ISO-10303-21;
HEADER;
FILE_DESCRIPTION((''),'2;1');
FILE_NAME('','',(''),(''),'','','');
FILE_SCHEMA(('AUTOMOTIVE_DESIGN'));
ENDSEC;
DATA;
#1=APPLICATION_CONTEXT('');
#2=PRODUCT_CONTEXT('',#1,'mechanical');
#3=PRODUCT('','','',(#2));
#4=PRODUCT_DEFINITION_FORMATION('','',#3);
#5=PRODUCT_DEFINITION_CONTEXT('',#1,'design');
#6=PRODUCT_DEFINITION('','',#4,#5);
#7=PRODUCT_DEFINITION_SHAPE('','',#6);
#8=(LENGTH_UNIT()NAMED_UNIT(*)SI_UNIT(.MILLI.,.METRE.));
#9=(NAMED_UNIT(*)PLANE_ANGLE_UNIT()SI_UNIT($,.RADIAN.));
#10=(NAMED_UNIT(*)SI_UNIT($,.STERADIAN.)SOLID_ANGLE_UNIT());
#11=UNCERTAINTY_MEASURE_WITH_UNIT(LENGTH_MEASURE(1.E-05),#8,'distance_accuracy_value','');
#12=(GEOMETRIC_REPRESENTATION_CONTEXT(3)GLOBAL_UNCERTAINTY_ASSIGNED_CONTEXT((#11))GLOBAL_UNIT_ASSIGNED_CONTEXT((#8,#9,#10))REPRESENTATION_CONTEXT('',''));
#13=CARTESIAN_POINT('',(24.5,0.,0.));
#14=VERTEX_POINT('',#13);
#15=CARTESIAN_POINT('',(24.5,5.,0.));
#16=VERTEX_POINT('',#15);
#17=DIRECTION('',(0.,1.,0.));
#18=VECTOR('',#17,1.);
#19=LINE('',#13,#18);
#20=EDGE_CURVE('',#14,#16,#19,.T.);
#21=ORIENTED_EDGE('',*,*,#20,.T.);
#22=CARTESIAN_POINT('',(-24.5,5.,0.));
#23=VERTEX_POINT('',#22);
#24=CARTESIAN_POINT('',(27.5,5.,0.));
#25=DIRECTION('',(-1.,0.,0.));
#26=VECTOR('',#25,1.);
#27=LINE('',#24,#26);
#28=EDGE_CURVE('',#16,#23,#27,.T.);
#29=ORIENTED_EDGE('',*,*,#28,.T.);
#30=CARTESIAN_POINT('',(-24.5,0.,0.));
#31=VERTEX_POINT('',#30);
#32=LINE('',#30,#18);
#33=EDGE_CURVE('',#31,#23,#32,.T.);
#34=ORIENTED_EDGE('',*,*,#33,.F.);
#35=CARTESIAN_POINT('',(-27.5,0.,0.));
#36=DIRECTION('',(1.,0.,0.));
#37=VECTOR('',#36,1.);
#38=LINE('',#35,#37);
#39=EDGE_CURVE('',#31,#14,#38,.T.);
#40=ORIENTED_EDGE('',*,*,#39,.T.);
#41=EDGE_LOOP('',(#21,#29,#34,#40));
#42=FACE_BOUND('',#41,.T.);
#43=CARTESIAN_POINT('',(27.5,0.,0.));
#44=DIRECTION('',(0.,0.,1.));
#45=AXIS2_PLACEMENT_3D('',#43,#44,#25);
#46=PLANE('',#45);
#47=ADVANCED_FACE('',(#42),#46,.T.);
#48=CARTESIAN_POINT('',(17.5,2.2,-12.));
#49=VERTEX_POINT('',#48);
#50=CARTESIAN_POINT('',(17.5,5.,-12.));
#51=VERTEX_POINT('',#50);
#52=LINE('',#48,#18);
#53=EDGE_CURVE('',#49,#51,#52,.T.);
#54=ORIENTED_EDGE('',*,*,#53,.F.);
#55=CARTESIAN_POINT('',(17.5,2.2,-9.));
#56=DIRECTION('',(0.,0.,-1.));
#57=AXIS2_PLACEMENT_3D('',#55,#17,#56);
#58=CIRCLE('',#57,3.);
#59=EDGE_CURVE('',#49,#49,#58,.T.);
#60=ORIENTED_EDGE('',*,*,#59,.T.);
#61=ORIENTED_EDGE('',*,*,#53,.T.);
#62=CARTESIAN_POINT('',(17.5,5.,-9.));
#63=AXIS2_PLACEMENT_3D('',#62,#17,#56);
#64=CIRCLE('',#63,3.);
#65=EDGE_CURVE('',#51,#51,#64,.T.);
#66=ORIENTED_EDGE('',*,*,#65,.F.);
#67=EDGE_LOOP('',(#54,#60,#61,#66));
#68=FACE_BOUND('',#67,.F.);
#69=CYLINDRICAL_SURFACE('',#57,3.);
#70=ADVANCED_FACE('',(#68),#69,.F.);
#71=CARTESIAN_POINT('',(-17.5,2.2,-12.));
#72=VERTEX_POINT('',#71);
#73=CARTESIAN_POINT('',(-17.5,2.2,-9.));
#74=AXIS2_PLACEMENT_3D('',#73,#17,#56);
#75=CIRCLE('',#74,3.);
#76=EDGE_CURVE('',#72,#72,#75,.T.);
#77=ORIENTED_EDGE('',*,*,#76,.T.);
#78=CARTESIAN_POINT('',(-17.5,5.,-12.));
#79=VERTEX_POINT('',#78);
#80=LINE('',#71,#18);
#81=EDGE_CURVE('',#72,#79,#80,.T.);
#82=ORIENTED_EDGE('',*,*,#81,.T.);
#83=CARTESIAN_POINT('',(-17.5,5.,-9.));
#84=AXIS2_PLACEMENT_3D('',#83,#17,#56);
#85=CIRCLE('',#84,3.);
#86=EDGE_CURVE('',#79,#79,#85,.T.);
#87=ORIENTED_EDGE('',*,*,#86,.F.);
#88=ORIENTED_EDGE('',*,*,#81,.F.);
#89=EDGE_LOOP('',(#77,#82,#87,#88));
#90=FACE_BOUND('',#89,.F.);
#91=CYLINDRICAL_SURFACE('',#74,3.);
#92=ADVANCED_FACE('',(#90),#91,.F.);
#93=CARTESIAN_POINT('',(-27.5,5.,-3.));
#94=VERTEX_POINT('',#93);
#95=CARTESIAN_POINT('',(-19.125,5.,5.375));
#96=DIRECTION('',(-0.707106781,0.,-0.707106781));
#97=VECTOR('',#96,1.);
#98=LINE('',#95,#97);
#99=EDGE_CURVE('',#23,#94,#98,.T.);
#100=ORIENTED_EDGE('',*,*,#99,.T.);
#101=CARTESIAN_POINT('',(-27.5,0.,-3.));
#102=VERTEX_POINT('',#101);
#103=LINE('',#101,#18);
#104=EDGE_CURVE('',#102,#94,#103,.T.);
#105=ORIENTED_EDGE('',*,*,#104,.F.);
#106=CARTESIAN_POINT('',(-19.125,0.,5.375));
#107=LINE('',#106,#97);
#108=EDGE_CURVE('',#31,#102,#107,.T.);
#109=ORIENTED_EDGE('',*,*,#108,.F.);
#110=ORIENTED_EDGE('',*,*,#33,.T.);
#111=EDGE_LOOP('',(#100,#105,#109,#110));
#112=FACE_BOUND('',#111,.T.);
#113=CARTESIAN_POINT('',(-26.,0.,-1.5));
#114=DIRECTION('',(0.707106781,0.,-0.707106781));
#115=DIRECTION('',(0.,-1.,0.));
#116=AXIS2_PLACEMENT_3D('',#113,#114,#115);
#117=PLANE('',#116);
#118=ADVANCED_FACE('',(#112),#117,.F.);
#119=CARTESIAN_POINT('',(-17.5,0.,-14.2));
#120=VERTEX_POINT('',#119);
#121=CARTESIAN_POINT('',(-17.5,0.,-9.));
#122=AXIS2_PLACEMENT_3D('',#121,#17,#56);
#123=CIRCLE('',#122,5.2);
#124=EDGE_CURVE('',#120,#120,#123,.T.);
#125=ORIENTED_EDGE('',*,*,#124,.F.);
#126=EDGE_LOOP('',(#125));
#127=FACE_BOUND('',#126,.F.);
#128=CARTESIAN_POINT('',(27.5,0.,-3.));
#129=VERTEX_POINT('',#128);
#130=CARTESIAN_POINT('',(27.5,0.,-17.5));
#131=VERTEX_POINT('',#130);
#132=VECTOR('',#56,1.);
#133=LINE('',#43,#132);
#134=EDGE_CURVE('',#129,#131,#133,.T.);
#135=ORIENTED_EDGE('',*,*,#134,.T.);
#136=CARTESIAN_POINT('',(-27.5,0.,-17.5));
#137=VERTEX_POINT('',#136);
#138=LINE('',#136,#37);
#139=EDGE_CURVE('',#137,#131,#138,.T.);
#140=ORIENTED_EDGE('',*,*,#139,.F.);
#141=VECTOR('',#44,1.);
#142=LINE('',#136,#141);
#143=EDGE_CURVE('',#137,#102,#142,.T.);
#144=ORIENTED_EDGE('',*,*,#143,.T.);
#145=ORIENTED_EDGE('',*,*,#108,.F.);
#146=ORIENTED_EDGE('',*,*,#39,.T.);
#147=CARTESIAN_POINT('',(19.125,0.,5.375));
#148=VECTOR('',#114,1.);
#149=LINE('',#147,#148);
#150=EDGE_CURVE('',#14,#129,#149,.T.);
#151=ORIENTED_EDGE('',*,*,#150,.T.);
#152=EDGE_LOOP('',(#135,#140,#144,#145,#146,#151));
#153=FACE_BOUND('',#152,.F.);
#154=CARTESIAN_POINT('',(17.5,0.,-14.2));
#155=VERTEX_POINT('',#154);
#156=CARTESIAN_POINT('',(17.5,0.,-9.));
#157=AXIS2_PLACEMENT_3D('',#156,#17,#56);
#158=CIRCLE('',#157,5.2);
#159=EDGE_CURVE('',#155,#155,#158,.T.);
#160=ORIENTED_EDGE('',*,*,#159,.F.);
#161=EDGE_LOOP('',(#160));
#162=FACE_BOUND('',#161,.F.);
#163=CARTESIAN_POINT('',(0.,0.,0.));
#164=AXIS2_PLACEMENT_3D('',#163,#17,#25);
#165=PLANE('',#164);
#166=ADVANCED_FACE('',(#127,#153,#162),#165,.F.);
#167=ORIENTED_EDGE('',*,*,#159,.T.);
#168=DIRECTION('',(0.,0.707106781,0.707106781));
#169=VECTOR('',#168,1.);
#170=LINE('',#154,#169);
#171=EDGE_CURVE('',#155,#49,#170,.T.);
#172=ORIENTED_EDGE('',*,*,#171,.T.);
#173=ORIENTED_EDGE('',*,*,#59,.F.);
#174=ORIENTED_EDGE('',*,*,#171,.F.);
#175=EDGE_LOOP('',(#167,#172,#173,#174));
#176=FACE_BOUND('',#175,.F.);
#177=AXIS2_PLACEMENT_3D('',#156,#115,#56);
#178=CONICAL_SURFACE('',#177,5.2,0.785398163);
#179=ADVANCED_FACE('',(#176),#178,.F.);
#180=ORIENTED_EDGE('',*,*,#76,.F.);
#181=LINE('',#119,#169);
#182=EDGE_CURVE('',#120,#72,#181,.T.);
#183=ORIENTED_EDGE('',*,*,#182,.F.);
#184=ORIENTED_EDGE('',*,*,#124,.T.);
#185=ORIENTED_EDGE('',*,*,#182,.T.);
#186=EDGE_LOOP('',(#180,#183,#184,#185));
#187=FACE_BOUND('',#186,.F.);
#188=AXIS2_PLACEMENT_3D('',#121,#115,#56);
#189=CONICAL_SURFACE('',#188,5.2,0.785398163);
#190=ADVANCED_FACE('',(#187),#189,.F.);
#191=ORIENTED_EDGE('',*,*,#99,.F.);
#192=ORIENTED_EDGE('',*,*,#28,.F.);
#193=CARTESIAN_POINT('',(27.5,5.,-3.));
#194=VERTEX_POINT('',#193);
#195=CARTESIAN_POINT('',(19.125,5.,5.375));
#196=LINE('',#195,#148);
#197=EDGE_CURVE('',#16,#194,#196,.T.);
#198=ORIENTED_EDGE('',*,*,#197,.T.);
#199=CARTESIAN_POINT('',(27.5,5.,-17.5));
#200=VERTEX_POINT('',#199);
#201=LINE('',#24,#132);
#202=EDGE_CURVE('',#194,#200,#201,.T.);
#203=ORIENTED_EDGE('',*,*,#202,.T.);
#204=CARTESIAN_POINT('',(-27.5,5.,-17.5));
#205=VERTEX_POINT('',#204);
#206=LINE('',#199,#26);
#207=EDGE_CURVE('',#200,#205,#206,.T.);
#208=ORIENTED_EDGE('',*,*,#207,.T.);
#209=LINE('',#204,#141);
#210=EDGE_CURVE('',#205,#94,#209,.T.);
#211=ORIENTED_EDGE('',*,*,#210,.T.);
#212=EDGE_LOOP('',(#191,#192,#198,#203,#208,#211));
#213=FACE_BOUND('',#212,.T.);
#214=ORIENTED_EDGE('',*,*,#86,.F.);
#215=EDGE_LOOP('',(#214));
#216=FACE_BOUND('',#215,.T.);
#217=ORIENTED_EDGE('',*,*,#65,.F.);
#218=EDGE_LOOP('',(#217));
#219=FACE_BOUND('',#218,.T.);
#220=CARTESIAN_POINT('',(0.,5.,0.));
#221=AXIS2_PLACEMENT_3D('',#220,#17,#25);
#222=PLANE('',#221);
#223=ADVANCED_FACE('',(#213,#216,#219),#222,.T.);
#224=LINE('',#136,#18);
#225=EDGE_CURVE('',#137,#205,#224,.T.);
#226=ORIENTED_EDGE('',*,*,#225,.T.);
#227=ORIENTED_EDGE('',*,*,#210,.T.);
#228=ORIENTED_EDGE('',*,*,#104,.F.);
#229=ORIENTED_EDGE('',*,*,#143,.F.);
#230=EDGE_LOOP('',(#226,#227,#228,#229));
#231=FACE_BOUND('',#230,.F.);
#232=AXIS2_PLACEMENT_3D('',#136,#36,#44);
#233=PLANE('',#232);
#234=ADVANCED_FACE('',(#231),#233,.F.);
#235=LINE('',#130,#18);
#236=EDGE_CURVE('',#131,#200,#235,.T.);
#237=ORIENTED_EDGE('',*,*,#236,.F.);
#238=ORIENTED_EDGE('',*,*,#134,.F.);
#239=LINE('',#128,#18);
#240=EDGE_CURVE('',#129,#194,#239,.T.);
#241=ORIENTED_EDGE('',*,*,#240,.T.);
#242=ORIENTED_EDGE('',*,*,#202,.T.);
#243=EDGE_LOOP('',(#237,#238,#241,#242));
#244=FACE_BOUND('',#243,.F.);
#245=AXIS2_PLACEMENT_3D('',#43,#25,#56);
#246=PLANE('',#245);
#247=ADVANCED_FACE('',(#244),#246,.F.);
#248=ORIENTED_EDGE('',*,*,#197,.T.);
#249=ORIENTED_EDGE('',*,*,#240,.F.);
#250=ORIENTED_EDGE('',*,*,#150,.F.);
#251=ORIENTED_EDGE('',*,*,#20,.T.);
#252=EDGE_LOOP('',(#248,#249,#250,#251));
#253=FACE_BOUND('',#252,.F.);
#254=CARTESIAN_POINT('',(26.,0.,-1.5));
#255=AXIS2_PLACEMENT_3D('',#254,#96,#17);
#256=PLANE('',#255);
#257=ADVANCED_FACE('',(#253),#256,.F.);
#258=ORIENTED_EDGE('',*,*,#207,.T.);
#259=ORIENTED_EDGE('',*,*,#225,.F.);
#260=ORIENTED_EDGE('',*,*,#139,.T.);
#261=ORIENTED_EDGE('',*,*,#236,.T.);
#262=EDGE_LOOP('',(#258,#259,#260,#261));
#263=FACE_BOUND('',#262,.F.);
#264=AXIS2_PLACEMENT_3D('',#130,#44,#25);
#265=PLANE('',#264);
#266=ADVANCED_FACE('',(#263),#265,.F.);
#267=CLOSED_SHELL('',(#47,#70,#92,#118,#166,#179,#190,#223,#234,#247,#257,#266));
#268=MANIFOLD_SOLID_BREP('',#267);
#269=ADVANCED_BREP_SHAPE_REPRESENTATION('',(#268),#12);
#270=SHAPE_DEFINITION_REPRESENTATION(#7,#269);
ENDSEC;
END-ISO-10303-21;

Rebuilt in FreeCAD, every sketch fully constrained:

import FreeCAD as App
import Part
import Sketcher
Q = App.Units.Quantity


def edges_at(feature, points):
    """Names of the edges that pass closest to the given points."""
    edges = feature.Shape.Edges
    near = lambda p: min(range(len(edges)), key=lambda i: edges[i].distToShape(Part.Vertex(*p))[0])
    return sorted({f"Edge{near(p) + 1}" for p in points})

doc = App.newDocument("Part")
body = doc.addObject("PartDesign::Body", "Body")

# Sketch on XZ plane
sketch1 = body.newObject("Sketcher::SketchObject", "Sketch")
sketch1.AttachmentSupport = (doc.getObject("XZ_Plane"), [""])
sketch1.MapMode = "FlatFace"
sketch1.addGeometry([
    Part.LineSegment(App.Vector(28, 0, 0), App.Vector(28, -18, 0)),
    Part.LineSegment(App.Vector(28, -18, 0), App.Vector(-28, -18, 0)),
    Part.LineSegment(App.Vector(-28, -18, 0), App.Vector(-28, 0, 0)),
    Part.LineSegment(App.Vector(-28, 0, 0), App.Vector(28, 0, 0)),
], False)
sketch1.addConstraint([
    Sketcher.Constraint("Coincident", 0, 2, 1, 1),
    Sketcher.Constraint("Coincident", 1, 2, 2, 1),
    Sketcher.Constraint("Coincident", 2, 2, 3, 1),
    Sketcher.Constraint("Coincident", 3, 2, 0, 1),
    Sketcher.Constraint("Vertical", 0),
    Sketcher.Constraint("Horizontal", 1),
    Sketcher.Constraint("Vertical", 2),
    Sketcher.Constraint("Horizontal", 3),
    Sketcher.Constraint("Symmetric", 2, 2, 3, 2, -1, 1),
    Sketcher.Constraint("DistanceX", 1, 2, 1, 1, Q("55 mm")),
    Sketcher.Constraint("DistanceY", 0, 2, 0, 1, Q("17.5 mm")),
])
pad1 = body.newObject("PartDesign::Pad", "Pad")
pad1.Profile = sketch1
pad1.Length = 5
pad1.Reversed = True

# Sketch on XZ plane
sketch2 = body.newObject("Sketcher::SketchObject", "Sketch001")
sketch2.AttachmentSupport = (doc.getObject("XZ_Plane"), [""])
sketch2.MapMode = "FlatFace"
sketch2.addGeometry([
    Part.Circle(App.Vector(17.5, -9, 0), App.Vector(0, 0, 1), 3),
    Part.Circle(App.Vector(-17.5, -9, 0), App.Vector(0, 0, 1), 3),
], False)
sketch2.addConstraint([
    Sketcher.Constraint("Equal", 0, 1),
    Sketcher.Constraint("Symmetric", 0, 3, 1, 3, -2),
    Sketcher.Constraint("Diameter", 0, Q("6 mm")),
    Sketcher.Constraint("DistanceY", 0, 3, -1, 1, Q("9 mm")),
    Sketcher.Constraint("DistanceX", 1, 3, 0, 3, Q("35 mm")),
])
doc.recompute()
hole = body.newObject("PartDesign::Hole", "Hole")
hole.Profile = sketch2
hole.ThreadType = "None"
hole.Diameter = 6
hole.DepthType = "ThroughAll"
hole.HoleCutType = "Countersink"
hole.HoleCutDiameter = 10.4
hole.HoleCutCountersinkAngle = 90
doc.recompute()

chamfer = body.newObject("PartDesign::Chamfer", "Chamfer")
chamfer.Base = (hole, edges_at(hole, [(-27.5, 2.5, 0), (27.5, 2.5, 0)]))
chamfer.Size = 3

doc.recompute()
